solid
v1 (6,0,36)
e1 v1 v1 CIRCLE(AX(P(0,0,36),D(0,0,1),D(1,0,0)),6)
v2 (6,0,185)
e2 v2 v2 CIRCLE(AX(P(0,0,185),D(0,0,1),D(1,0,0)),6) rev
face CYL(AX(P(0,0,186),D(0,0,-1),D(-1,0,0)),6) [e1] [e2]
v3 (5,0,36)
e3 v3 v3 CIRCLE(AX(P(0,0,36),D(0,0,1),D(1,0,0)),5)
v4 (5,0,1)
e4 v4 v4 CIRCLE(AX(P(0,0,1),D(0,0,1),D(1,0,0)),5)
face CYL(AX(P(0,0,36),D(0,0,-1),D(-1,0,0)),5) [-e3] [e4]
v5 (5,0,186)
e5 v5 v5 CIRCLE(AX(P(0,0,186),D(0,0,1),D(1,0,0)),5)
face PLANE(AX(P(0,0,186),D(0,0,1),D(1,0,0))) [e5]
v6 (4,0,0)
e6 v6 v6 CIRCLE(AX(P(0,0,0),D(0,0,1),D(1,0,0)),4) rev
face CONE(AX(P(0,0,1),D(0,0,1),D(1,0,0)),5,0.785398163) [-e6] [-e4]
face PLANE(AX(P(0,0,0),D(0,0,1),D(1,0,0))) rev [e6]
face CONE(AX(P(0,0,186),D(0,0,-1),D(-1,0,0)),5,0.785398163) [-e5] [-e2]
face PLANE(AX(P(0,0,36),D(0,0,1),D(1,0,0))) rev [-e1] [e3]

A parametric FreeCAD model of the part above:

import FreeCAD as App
import Part
import Sketcher
from FreeCAD import Vector
Q = App.Units.Quantity


def edges_at(feature, points):
    """Names of the edges that pass closest to the given points."""
    edges = feature.Shape.Edges
    near = lambda p: min(range(len(edges)), key=lambda i: edges[i].distToShape(Part.Vertex(*p))[0])
    return sorted({f"Edge{near(p) + 1}" for p in points})

doc = App.newDocument("Part")
body = doc.addObject("PartDesign::Body", "Body")

sketch1 = body.newObject("Sketcher::SketchObject", "Sketch")
sketch1.AttachmentSupport = (doc.getObject("XY_Plane"), [""])
sketch1.MapMode = "FlatFace"
sketch1.addGeometry(Part.Circle(Vector(0, 0, 0), Vector(0, 0, 1), 5), False)
sketch1.addConstraint([
    Sketcher.Constraint("Coincident", 0, 3, -1, 1),
    Sketcher.Constraint("Diameter", 0, Q("10 mm")),
])
pad1 = body.newObject("PartDesign::Pad", "Pad")
pad1.Profile = sketch1
pad1.Length = 36

sketch2 = body.newObject("Sketcher::SketchObject", "Sketch001")
sketch2.AttachmentSupport = (doc.getObject("XY_Plane"), [""])
sketch2.MapMode = "FlatFace"
sketch2.AttachmentOffset = App.Placement(Vector(0, 0, 36), App.Rotation())
sketch2.addGeometry(Part.Circle(Vector(0, 0, 0), Vector(0, 0, 1), 6), False)
sketch2.addConstraint([
    Sketcher.Constraint("Coincident", 0, 3, -1, 1),
    Sketcher.Constraint("Diameter", 0, Q("12 mm")),
])
pad2 = body.newObject("PartDesign::Pad", "Pad001")
pad2.Profile = sketch2
pad2.Length = 150
doc.recompute()

chamfer = body.newObject("PartDesign::Chamfer", "Chamfer")
chamfer.Base = (pad2, edges_at(pad2, [(-5, 0, 0), (-6, 0, 186)]))
chamfer.Size = 1

doc.recompute()
